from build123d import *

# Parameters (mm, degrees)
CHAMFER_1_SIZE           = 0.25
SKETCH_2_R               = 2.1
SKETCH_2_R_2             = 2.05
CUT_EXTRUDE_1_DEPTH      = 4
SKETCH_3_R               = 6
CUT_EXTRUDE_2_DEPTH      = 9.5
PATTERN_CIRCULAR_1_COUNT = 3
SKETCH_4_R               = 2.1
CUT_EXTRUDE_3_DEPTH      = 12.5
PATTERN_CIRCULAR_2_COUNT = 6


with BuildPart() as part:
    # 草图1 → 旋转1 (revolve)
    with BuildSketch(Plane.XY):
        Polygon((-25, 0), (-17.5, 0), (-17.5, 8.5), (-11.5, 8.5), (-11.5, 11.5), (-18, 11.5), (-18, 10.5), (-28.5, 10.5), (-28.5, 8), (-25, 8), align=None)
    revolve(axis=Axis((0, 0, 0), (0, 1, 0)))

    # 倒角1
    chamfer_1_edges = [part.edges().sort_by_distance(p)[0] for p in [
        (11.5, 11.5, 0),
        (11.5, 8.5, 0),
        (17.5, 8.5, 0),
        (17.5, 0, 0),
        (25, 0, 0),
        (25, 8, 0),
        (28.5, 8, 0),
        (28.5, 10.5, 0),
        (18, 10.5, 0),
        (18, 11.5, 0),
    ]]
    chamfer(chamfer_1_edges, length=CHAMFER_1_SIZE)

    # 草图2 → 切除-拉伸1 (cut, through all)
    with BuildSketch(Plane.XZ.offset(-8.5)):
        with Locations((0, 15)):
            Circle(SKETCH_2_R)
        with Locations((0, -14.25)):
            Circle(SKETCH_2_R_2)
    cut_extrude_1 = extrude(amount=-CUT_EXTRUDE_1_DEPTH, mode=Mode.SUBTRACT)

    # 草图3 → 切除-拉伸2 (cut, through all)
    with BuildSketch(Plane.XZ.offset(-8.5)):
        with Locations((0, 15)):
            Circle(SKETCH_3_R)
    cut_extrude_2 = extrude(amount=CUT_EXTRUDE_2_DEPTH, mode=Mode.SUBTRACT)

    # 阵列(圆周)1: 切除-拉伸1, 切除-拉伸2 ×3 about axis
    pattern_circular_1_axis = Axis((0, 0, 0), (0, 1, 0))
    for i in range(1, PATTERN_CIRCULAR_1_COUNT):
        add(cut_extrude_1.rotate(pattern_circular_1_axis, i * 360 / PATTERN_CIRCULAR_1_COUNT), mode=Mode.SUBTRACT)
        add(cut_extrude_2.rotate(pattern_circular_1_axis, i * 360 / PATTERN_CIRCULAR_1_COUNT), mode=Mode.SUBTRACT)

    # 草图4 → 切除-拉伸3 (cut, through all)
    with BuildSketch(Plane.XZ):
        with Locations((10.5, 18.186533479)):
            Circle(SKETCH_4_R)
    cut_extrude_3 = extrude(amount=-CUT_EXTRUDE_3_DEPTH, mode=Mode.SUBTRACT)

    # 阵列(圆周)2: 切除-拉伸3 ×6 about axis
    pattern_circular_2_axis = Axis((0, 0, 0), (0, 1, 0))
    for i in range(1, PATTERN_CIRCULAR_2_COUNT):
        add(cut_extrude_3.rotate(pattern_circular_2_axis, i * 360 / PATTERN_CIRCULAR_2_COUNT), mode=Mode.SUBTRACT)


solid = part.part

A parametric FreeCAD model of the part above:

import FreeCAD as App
import Part
import Sketcher
Q = App.Units.Quantity


def edges_at(feature, points):
    """Names of the edges that pass closest to the given points."""
    edges = feature.Shape.Edges
    near = lambda p: min(range(len(edges)), key=lambda i: edges[i].distToShape(Part.Vertex(*p))[0])
    return sorted({f"Edge{near(p) + 1}" for p in points})

doc = App.newDocument("Part")
body = doc.addObject("PartDesign::Body", "Body")

# Sketch on XY plane
sketch1 = doc.addObject("Sketcher::SketchObject", "Sketch")
body.addObject(sketch1)
sketch1.AttachmentSupport = (doc.XY_Plane, [""])
sketch1.MapMode = "FlatFace"
sketch1.addGeometry(Part.LineSegment(App.Vector(-25, 0, 0), App.Vector(-17.5, 0, 0)), False)
sketch1.addGeometry(Part.LineSegment(App.Vector(-17.5, 0, 0), App.Vector(-17.5, 8.5, 0)), False)
sketch1.addGeometry(Part.LineSegment(App.Vector(-17.5, 8.5, 0), App.Vector(-11.5, 8.5, 0)), False)
sketch1.addGeometry(Part.LineSegment(App.Vector(-11.5, 8.5, 0), App.Vector(-11.5, 11.5, 0)), False)
sketch1.addGeometry(Part.LineSegment(App.Vector(-11.5, 11.5, 0), App.Vector(-18, 11.5, 0)), False)
sketch1.addGeometry(Part.LineSegment(App.Vector(-18, 11.5, 0), App.Vector(-18, 10.5, 0)), False)
sketch1.addGeometry(Part.LineSegment(App.Vector(-18, 10.5, 0), App.Vector(-28.5, 10.5, 0)), False)
sketch1.addGeometry(Part.LineSegment(App.Vector(-28.5, 10.5, 0), App.Vector(-28.5, 8, 0)), False)
sketch1.addGeometry(Part.LineSegment(App.Vector(-28.5, 8, 0), App.Vector(-25, 8, 0)), False)
sketch1.addGeometry(Part.LineSegment(App.Vector(-25, 8, 0), App.Vector(-25, 0, 0)), False)
sketch1.addConstraint(Sketcher.Constraint("Coincident", 0, 2, 1, 1))
sketch1.addConstraint(Sketcher.Constraint("Coincident", 1, 2, 2, 1))
sketch1.addConstraint(Sketcher.Constraint("Coincident", 2, 2, 3, 1))
sketch1.addConstraint(Sketcher.Constraint("Coincident", 3, 2, 4, 1))
sketch1.addConstraint(Sketcher.Constraint("Coincident", 4, 2, 5, 1))
sketch1.addConstraint(Sketcher.Constraint("Coincident", 5, 2, 6, 1))
sketch1.addConstraint(Sketcher.Constraint("Coincident", 6, 2, 7, 1))
sketch1.addConstraint(Sketcher.Constraint("Coincident", 7, 2, 8, 1))
sketch1.addConstraint(Sketcher.Constraint("Coincident", 8, 2, 9, 1))
sketch1.addConstraint(Sketcher.Constraint("Coincident", 9, 2, 0, 1))
sketch1.addConstraint(Sketcher.Constraint("Horizontal", 0))
sketch1.addConstraint(Sketcher.Constraint("Vertical", 1))
sketch1.addConstraint(Sketcher.Constraint("Horizontal", 2))
sketch1.addConstraint(Sketcher.Constraint("Vertical", 3))
sketch1.addConstraint(Sketcher.Constraint("Horizontal", 4))
sketch1.addConstraint(Sketcher.Constraint("Vertical", 5))
sketch1.addConstraint(Sketcher.Constraint("Horizontal", 6))
sketch1.addConstraint(Sketcher.Constraint("Vertical", 7))
sketch1.addConstraint(Sketcher.Constraint("Horizontal", 8))
sketch1.addConstraint(Sketcher.Constraint("Vertical", 9))
sketch1.addConstraint(Sketcher.Constraint("PointOnObject", 0, 2, -1))
sketch1.addConstraint(Sketcher.Constraint("DistanceX", 2, 1, 2, 2, Q("6 mm")))
sketch1.addConstraint(Sketcher.Constraint("DistanceY", 3, 1, 3, 2, Q("3 mm")))
sketch1.addConstraint(Sketcher.Constraint("DistanceY", 5, 2, 5, 1, Q("1 mm")))
sketch1.addConstraint(Sketcher.Constraint("DistanceY", 9, 2, 9, 1, Q("8 mm")))
sketch1.addConstraint(Sketcher.Constraint("DistanceX", 0, 1, 0, 2, Q("7.5 mm")))
sketch1.addConstraint(Sketcher.Constraint("DistanceX", 4, 2, 4, 1, Q("6.5 mm")))
sketch1.addConstraint(Sketcher.Constraint("DistanceX", 6, 2, 6, 1, Q("10.5 mm")))
sketch1.addConstraint(Sketcher.Constraint("DistanceY", 1, 1, 1, 2, Q("8.5 mm")))
sketch1.addConstraint(Sketcher.Constraint("DistanceX", 4, 2, -1, 1, Q("18 mm")))
revolution = doc.addObject("PartDesign::Revolution", "Revolution")
body.addObject(revolution)
revolution.Profile = sketch1
revolution.ReferenceAxis = (sketch1, ["V_Axis"])
revolution.Angle = 360
doc.recompute()

chamfer = doc.addObject("PartDesign::Chamfer", "Chamfer")
body.addObject(chamfer)
chamfer.Base = (revolution, edges_at(revolution, [
    (11.5, 11.5, 0),
    (11.5, 8.5, 0),
    (17.5, 8.5, 0),
    (17.5, 0, 0),
    (25, 0, 0),
    (25, 8, 0),
    (28.5, 8, 0),
    (28.5, 10.5, 0),
    (18, 10.5, 0),
    (18, 11.5, 0),
]))
chamfer.Size = 0.25

# Sketch on XZ plane
sketch2 = doc.addObject("Sketcher::SketchObject", "Sketch001")
body.addObject(sketch2)
sketch2.AttachmentSupport = (doc.XZ_Plane, [""])
sketch2.MapMode = "FlatFace"
sketch2.AttachmentOffset = App.Placement(App.Vector(0, 0, -8.5), App.Rotation())
sketch2.addGeometry(Part.Circle(App.Vector(0, 15, 0), App.Vector(0, 0, 1), 2.1), False)
sketch2.addGeometry(Part.Circle(App.Vector(0, -14.25, 0), App.Vector(0, 0, 1), 2.05), False)
sketch2.addConstraint(Sketcher.Constraint("PointOnObject", 0, 3, -2))
sketch2.addConstraint(Sketcher.Constraint("PointOnObject", 1, 3, -2))
sketch2.addConstraint(Sketcher.Constraint("Diameter", 0, Q("4.2 mm")))
sketch2.addConstraint(Sketcher.Constraint("Diameter", 1, Q("4.1 mm")))
sketch2.addConstraint(Sketcher.Constraint("DistanceY", -1, 1, 0, 3, Q("15 mm")))
sketch2.addConstraint(Sketcher.Constraint("DistanceY", 1, 3, -1, 1, Q("14.25 mm")))
pocket1 = doc.addObject("PartDesign::Pocket", "Pocket")
body.addObject(pocket1)
pocket1.Profile = sketch2
pocket1.Type = "ThroughAll"

# Sketch on XZ plane
sketch3 = doc.addObject("Sketcher::SketchObject", "Sketch002")
body.addObject(sketch3)
sketch3.AttachmentSupport = (doc.XZ_Plane, [""])
sketch3.MapMode = "FlatFace"
sketch3.AttachmentOffset = App.Placement(App.Vector(0, 0, -8.5), App.Rotation())
sketch3.addGeometry(Part.Circle(App.Vector(0, 15, 0), App.Vector(0, 0, 1), 6), False)
sketch3.addConstraint(Sketcher.Constraint("PointOnObject", 0, 3, -2))
sketch3.addConstraint(Sketcher.Constraint("Diameter", 0, Q("12 mm")))
sketch3.addConstraint(Sketcher.Constraint("DistanceY", -1, 1, 0, 3, Q("15 mm")))
pocket2 = doc.addObject("PartDesign::Pocket", "Pocket001")
body.addObject(pocket2)
pocket2.Profile = sketch3
pocket2.Type = "ThroughAll"
pocket2.Reversed = True
doc.recompute()

polarpattern = doc.addObject("PartDesign::PolarPattern", "PolarPattern")
body.addObject(polarpattern)
polarpattern.Originals = [pocket1, pocket2]
polarpattern.Axis = (doc.Y_Axis, [""])
polarpattern.Angle = 360
polarpattern.Occurrences = 3
body.Tip = polarpattern

# Sketch on XZ plane
sketch4 = doc.addObject("Sketcher::SketchObject", "Sketch003")
body.addObject(sketch4)
sketch4.AttachmentSupport = (doc.XZ_Plane, [""])
sketch4.MapMode = "FlatFace"
sketch4.addGeometry(Part.Circle(App.Vector(10.5, 18.186533, 0), App.Vector(0, 0, 1), 2.1), False)
sketch4.addConstraint(Sketcher.Constraint("Diameter", 0, Q("4.2 mm")))
sketch4.addConstraint(Sketcher.Constraint("DistanceX", -1, 1, 0, 3, Q("10.5 mm")))
sketch4.addConstraint(Sketcher.Constraint("DistanceY", -1, 1, 0, 3, Q("18.186533 mm")))
pocket3 = doc.addObject("PartDesign::Pocket", "Pocket002")
body.addObject(pocket3)
pocket3.Profile = sketch4
pocket3.Type = "ThroughAll"
doc.recompute()

polarpattern2 = doc.addObject("PartDesign::PolarPattern", "PolarPattern001")
body.addObject(polarpattern2)
polarpattern2.Originals = [pocket3]
polarpattern2.Axis = (doc.Y_Axis, [""])
polarpattern2.Angle = 360
polarpattern2.Occurrences = 6
body.Tip = polarpattern2

doc.recompute()
